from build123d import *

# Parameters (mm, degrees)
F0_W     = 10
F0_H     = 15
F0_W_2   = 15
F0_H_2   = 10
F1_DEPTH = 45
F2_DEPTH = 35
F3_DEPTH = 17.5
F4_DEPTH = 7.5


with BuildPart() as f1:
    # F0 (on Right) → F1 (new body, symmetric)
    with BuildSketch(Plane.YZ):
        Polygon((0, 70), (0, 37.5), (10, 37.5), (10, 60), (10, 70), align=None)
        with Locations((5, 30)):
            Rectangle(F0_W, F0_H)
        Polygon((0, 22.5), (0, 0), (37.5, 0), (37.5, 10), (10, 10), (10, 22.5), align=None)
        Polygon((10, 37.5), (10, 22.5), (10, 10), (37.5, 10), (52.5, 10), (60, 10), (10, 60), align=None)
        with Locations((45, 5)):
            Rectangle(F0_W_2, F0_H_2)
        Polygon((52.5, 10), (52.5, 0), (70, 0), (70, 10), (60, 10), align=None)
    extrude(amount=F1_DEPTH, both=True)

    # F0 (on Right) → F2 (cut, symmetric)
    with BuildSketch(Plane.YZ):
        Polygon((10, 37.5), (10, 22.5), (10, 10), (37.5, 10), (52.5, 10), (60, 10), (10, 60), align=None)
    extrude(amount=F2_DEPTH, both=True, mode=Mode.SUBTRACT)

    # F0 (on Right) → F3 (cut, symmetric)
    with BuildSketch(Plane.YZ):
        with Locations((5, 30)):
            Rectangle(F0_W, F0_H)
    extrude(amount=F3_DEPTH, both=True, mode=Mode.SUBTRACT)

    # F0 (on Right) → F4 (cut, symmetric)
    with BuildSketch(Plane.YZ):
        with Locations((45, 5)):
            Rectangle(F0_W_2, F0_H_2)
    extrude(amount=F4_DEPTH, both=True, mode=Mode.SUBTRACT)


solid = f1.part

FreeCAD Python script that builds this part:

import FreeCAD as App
import Part
import Sketcher
from FreeCAD import Vector

doc = App.newDocument("Part")
body = doc.addObject("PartDesign::Body", "Body")

# Sketch on YZ plane
sketch1 = body.newObject("Sketcher::SketchObject", "Sketch")
sketch1.AttachmentSupport = (doc.getObject("YZ_Plane"), [""])
sketch1.MapMode = "FlatFace"
sketch1.addGeometry(Part.LineSegment(Vector(0, 70, 0), Vector(0, 0, 0)), False)
sketch1.addGeometry(Part.LineSegment(Vector(0, 0, 0), Vector(70, 0, 0)), False)
sketch1.addGeometry(Part.LineSegment(Vector(70, 0, 0), Vector(70, 10, 0)), False)
sketch1.addGeometry(Part.LineSegment(Vector(70, 10, 0), Vector(60, 10, 0)), False)
sketch1.addGeometry(Part.LineSegment(Vector(60, 10, 0), Vector(10, 60, 0)), False)
sketch1.addGeometry(Part.LineSegment(Vector(10, 60, 0), Vector(10, 70, 0)), False)
sketch1.addGeometry(Part.LineSegment(Vector(10, 70, 0), Vector(0, 70, 0)), False)
sketch1.addConstraint(Sketcher.Constraint("Coincident", 0, 2, 1, 1))
sketch1.addConstraint(Sketcher.Constraint("Coincident", 1, 2, 2, 1))
sketch1.addConstraint(Sketcher.Constraint("Coincident", 2, 2, 3, 1))
sketch1.addConstraint(Sketcher.Constraint("Coincident", 3, 2, 4, 1))
sketch1.addConstraint(Sketcher.Constraint("Coincident", 4, 2, 5, 1))
sketch1.addConstraint(Sketcher.Constraint("Coincident", 5, 2, 6, 1))
sketch1.addConstraint(Sketcher.Constraint("Coincident", 6, 2, 0, 1))
sketch1.addConstraint(Sketcher.Constraint("Vertical", 0))
sketch1.addConstraint(Sketcher.Constraint("Horizontal", 1))
sketch1.addConstraint(Sketcher.Constraint("Vertical", 2))
sketch1.addConstraint(Sketcher.Constraint("Horizontal", 3))
sketch1.addConstraint(Sketcher.Constraint("Vertical", 5))
sketch1.addConstraint(Sketcher.Constraint("Horizontal", 6))
sketch1.addConstraint(Sketcher.Constraint("Coincident", 0, 2, -1, 1))
sketch1.addConstraint(Sketcher.Constraint("Equal", 3, 6))
sketch1.addConstraint(Sketcher.Constraint("Equal", 1, 0))
sketch1.addConstraint(Sketcher.Constraint("Equal", 6, 2))
sketch1.addConstraint(Sketcher.Constraint("Equal", 2, 5))
sketch1.addConstraint(Sketcher.Constraint("DistanceX", 1, 1, 1, 2, 70.0))
sketch1.addConstraint(Sketcher.Constraint("DistanceX", 3, 2, 3, 1, 10.0))
pad1 = body.newObject("PartDesign::Pad", "Pad")
pad1.Profile = sketch1
pad1.Length = 90
pad1.Midplane = True

# Sketch on YZ plane
sketch2 = body.newObject("Sketcher::SketchObject", "Sketch001")
sketch2.AttachmentSupport = (doc.getObject("YZ_Plane"), [""])
sketch2.MapMode = "FlatFace"
sketch2.addGeometry(Part.LineSegment(Vector(10, 10, 0), Vector(60, 10, 0)), False)
sketch2.addGeometry(Part.LineSegment(Vector(60, 10, 0), Vector(10, 60, 0)), False)
sketch2.addGeometry(Part.LineSegment(Vector(10, 60, 0), Vector(10, 10, 0)), False)
sketch2.addConstraint(Sketcher.Constraint("Coincident", 0, 2, 1, 1))
sketch2.addConstraint(Sketcher.Constraint("Coincident", 1, 2, 2, 1))
sketch2.addConstraint(Sketcher.Constraint("Coincident", 2, 2, 0, 1))
sketch2.addConstraint(Sketcher.Constraint("Horizontal", 0))
sketch2.addConstraint(Sketcher.Constraint("Vertical", 2))
sketch2.addConstraint(Sketcher.Constraint("Equal", 0, 2))
sketch2.addConstraint(Sketcher.Constraint("DistanceX", 0, 1, 0, 2, 50.0))
sketch2.addConstraint(Sketcher.Constraint("DistanceX", -1, 1, 0, 2, 60.0))
sketch2.addConstraint(Sketcher.Constraint("DistanceY", -1, 1, 0, 2, 10.0))
pocket1 = body.newObject("PartDesign::Pocket", "Pocket")
pocket1.Profile = sketch2
pocket1.Length = 70
pocket1.Midplane = True

# Sketch on YZ plane
sketch3 = body.newObject("Sketcher::SketchObject", "Sketch002")
sketch3.AttachmentSupport = (doc.getObject("YZ_Plane"), [""])
sketch3.MapMode = "FlatFace"
sketch3.addGeometry(Part.LineSegment(Vector(0, 37.5, 0), Vector(0, 22.5, 0)), False)
sketch3.addGeometry(Part.LineSegment(Vector(0, 22.5, 0), Vector(10, 22.5, 0)), False)
sketch3.addGeometry(Part.LineSegment(Vector(10, 22.5, 0), Vector(10, 37.5, 0)), False)
sketch3.addGeometry(Part.LineSegment(Vector(10, 37.5, 0), Vector(0, 37.5, 0)), False)
sketch3.addConstraint(Sketcher.Constraint("Coincident", 0, 2, 1, 1))
sketch3.addConstraint(Sketcher.Constraint("Coincident", 1, 2, 2, 1))
sketch3.addConstraint(Sketcher.Constraint("Coincident", 2, 2, 3, 1))
sketch3.addConstraint(Sketcher.Constraint("Coincident", 3, 2, 0, 1))
sketch3.addConstraint(Sketcher.Constraint("Vertical", 0))
sketch3.addConstraint(Sketcher.Constraint("Horizontal", 1))
sketch3.addConstraint(Sketcher.Constraint("Vertical", 2))
sketch3.addConstraint(Sketcher.Constraint("Horizontal", 3))
sketch3.addConstraint(Sketcher.Constraint("PointOnObject", 0, 2, -2))
sketch3.addConstraint(Sketcher.Constraint("DistanceX", 1, 1, 1, 2, 10.0))
sketch3.addConstraint(Sketcher.Constraint("DistanceY", 0, 2, 0, 1, 15.0))
sketch3.addConstraint(Sketcher.Constraint("DistanceY", -1, 1, 0, 2, 22.5))
pocket2 = body.newObject("PartDesign::Pocket", "Pocket001")
pocket2.Profile = sketch3
pocket2.Length = 35
pocket2.Midplane = True

# Sketch on YZ plane
sketch4 = body.newObject("Sketcher::SketchObject", "Sketch003")
sketch4.AttachmentSupport = (doc.getObject("YZ_Plane"), [""])
sketch4.MapMode = "FlatFace"
sketch4.addGeometry(Part.LineSegment(Vector(37.5, 10, 0), Vector(37.5, 0, 0)), False)
sketch4.addGeometry(Part.LineSegment(Vector(37.5, 0, 0), Vector(52.5, 0, 0)), False)
sketch4.addGeometry(Part.LineSegment(Vector(52.5, 0, 0), Vector(52.5, 10, 0)), False)
sketch4.addGeometry(Part.LineSegment(Vector(52.5, 10, 0), Vector(37.5, 10, 0)), False)
sketch4.addConstraint(Sketcher.Constraint("Coincident", 0, 2, 1, 1))
sketch4.addConstraint(Sketcher.Constraint("Coincident", 1, 2, 2, 1))
sketch4.addConstraint(Sketcher.Constraint("Coincident", 2, 2, 3, 1))
sketch4.addConstraint(Sketcher.Constraint("Coincident", 3, 2, 0, 1))
sketch4.addConstraint(Sketcher.Constraint("Vertical", 0))
sketch4.addConstraint(Sketcher.Constraint("Horizontal", 1))
sketch4.addConstraint(Sketcher.Constraint("Vertical", 2))
sketch4.addConstraint(Sketcher.Constraint("Horizontal", 3))
sketch4.addConstraint(Sketcher.Constraint("PointOnObject", 0, 2, -1))
sketch4.addConstraint(Sketcher.Constraint("DistanceX", 1, 1, 1, 2, 15.0))
sketch4.addConstraint(Sketcher.Constraint("DistanceY", 0, 2, 0, 1, 10.0))
sketch4.addConstraint(Sketcher.Constraint("DistanceX", -1, 1, 0, 2, 37.5))
pocket3 = body.newObject("PartDesign::Pocket", "Pocket002")
pocket3.Profile = sketch4
pocket3.Length = 15
pocket3.Midplane = True

doc.recompute()
